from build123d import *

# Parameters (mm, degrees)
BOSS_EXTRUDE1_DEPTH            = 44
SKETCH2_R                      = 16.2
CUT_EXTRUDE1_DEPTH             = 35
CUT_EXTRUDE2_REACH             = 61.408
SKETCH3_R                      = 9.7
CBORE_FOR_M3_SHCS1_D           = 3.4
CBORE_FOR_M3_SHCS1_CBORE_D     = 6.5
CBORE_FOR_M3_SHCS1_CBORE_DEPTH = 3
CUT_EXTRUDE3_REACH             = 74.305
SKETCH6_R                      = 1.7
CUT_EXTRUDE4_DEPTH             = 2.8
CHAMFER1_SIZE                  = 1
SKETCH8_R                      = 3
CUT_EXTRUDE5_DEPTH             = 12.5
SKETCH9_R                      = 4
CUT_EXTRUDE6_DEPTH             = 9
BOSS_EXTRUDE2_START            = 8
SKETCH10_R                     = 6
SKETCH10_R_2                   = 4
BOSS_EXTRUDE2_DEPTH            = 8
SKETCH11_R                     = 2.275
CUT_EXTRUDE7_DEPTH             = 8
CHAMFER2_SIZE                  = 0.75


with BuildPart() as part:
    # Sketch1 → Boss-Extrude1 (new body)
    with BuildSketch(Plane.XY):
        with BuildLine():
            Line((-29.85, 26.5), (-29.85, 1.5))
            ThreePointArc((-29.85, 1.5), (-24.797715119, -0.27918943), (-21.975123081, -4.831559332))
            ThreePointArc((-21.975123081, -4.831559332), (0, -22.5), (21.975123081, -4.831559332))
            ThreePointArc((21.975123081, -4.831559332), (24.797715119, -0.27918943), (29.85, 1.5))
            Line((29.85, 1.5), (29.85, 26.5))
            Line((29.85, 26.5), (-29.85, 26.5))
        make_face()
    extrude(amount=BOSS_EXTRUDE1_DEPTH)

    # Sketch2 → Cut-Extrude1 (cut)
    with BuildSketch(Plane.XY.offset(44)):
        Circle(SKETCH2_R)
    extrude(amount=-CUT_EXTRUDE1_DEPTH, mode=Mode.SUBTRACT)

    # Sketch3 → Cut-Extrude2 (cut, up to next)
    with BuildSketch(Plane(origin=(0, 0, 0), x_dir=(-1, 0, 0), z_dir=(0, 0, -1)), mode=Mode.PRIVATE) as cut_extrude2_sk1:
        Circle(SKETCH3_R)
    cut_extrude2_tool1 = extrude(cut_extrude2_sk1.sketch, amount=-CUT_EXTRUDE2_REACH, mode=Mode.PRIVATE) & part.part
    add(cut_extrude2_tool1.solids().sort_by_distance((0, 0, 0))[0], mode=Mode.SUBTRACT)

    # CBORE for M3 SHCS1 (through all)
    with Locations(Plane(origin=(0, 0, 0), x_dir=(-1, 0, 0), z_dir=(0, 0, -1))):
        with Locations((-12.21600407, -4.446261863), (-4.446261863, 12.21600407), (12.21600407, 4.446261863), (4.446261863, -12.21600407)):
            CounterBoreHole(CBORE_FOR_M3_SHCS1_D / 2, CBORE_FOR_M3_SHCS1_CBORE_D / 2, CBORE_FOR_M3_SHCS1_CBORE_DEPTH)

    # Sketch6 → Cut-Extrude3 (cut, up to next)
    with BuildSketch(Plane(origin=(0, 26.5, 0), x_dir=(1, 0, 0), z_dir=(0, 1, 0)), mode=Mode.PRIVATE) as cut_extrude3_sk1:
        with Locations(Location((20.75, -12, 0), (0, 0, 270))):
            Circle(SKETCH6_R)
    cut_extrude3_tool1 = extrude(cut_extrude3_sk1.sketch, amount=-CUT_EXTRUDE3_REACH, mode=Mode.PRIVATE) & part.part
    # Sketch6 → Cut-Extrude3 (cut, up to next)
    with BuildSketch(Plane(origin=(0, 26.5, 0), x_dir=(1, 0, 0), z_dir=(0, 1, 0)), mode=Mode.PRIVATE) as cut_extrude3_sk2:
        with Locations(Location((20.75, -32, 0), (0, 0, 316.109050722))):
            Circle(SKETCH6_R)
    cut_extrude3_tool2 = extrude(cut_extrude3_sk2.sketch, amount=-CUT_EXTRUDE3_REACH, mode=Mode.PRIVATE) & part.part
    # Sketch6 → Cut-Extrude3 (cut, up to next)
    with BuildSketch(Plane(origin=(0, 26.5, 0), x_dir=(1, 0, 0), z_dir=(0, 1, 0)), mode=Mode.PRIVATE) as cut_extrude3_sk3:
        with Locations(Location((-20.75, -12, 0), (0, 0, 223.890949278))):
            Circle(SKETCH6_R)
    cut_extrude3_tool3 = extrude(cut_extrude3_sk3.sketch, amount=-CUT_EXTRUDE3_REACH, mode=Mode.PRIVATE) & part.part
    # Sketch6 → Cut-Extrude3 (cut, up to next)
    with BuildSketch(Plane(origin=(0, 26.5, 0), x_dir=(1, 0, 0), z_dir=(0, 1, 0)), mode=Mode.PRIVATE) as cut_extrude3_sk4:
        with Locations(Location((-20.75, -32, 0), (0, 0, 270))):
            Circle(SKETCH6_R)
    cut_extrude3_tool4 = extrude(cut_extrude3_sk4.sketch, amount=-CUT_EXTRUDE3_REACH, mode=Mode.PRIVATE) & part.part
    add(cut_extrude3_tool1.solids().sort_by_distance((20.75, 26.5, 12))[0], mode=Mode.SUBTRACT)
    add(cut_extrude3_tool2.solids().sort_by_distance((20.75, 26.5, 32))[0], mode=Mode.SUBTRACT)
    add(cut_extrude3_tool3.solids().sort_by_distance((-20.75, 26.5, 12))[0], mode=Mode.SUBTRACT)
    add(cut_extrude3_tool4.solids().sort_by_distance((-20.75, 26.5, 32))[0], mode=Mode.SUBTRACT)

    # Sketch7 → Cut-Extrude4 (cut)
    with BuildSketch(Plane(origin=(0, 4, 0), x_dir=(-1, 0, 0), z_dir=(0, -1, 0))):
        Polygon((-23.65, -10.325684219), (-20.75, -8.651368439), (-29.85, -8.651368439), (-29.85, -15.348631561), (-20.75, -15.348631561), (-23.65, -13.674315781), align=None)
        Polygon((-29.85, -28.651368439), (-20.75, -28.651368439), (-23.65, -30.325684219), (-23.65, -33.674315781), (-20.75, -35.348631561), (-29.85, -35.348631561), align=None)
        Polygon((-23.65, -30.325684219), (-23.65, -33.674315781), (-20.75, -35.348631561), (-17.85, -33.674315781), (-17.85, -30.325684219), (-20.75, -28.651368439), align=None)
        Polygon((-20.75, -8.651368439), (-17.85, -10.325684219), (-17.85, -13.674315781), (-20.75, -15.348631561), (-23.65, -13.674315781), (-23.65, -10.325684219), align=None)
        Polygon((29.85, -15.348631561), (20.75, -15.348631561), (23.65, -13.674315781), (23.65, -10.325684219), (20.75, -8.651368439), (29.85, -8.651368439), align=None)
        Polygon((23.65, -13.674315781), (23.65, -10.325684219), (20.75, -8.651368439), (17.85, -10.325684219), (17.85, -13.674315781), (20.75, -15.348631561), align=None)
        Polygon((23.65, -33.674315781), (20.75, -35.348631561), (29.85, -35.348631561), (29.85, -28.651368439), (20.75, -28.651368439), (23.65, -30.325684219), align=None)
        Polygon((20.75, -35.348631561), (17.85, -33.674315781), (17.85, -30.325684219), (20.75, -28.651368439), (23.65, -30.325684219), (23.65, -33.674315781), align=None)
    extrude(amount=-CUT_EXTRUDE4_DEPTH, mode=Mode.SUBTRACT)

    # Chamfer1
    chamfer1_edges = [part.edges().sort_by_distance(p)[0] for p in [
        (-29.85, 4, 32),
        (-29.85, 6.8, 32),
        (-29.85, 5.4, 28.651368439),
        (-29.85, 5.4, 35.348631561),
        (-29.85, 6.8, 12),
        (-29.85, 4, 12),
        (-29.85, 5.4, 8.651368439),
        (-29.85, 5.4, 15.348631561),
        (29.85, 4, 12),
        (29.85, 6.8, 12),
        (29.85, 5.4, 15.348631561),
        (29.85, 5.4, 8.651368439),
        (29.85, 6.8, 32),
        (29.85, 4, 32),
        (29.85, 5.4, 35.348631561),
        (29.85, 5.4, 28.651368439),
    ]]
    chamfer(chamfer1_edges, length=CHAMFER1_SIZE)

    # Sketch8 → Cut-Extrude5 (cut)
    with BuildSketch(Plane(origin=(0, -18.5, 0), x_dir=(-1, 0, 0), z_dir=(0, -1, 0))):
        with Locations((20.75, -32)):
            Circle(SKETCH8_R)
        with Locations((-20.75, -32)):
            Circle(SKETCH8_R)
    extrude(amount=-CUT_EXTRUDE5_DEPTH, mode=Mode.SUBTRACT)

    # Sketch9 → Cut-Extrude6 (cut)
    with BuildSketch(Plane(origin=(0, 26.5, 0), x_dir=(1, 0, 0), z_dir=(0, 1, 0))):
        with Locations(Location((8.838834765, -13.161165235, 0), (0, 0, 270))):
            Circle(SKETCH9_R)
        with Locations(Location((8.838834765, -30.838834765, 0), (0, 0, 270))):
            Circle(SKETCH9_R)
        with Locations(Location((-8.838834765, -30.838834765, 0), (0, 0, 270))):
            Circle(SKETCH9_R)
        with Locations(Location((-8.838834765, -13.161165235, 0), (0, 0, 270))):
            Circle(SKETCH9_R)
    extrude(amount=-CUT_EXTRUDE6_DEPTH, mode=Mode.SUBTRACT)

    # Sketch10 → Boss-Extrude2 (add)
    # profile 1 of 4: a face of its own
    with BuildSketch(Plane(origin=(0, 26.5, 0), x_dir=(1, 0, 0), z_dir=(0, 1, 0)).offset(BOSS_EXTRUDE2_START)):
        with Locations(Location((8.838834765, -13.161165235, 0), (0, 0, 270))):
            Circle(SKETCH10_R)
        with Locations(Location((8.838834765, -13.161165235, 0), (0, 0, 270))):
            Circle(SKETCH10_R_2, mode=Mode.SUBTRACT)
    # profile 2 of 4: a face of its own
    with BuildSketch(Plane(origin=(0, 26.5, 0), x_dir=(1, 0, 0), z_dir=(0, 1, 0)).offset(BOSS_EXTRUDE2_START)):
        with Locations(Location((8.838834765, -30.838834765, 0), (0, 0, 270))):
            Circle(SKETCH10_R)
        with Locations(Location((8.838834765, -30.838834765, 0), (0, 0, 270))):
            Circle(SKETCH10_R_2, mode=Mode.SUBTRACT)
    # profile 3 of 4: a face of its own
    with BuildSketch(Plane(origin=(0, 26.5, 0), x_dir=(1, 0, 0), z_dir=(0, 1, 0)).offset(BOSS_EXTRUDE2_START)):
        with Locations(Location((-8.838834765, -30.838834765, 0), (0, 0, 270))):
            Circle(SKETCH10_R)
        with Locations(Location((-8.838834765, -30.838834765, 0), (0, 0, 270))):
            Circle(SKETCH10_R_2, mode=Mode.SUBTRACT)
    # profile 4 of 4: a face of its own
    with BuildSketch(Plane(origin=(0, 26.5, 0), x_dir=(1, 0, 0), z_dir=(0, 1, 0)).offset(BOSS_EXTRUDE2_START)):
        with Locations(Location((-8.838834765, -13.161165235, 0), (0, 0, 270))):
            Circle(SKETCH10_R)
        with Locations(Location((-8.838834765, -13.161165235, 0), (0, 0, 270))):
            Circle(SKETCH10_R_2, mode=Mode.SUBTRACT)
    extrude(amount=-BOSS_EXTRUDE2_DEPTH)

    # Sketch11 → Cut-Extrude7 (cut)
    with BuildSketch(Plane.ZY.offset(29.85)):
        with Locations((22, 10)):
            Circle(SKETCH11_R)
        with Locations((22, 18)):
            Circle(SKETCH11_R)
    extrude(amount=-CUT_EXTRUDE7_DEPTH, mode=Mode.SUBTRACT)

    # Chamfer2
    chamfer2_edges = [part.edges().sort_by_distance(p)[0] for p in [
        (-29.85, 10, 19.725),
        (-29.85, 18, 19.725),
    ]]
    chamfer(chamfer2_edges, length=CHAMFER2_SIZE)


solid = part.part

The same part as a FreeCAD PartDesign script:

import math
import FreeCAD as App
import Part
import Sketcher

V = App.Vector
Q = App.Units.Quantity


def edges_at(feature, points):
    """Names of the edges that pass closest to the given points."""
    edges = feature.Shape.Edges
    near = lambda p: min(range(len(edges)), key=lambda i: edges[i].distToShape(Part.Vertex(*p))[0])
    return sorted({f"Edge{near(p) + 1}" for p in points})

doc = App.newDocument("Part")
body = doc.addObject("PartDesign::Body", "Body")

sketch1 = doc.addObject("Sketcher::SketchObject", "Sketch")
body.addObject(sketch1)
sketch1.AttachmentSupport = (doc.XY_Plane, [""])
sketch1.MapMode = "FlatFace"
sketch1.addGeometry([
    Part.LineSegment(V(-30, 26, 0), V(-30, 2, 0)),
    Part.ArcOfCircle(Part.Circle(V(-30, -7, 0), V(0, 0, 1), 8), math.radians(12), math.radians(90)),
    Part.ArcOfCircle(Part.Circle(V(0, 0, 0), V(0, 0, 1), 22), math.radians(-168), math.radians(-12)),
    Part.ArcOfCircle(Part.Circle(V(30, -7, 0), V(0, 0, 1), 8), math.radians(90), math.radians(168)),
    Part.LineSegment(V(30, 2, 0), V(30, 26, 0)),
    Part.LineSegment(V(30, 26, 0), V(-30, 26, 0)),
], False)
sketch1.addConstraint([
    Sketcher.Constraint("Coincident", 0, 2, 1, 2),
    Sketcher.Constraint("Tangent", 1, 1, 2, 1),
    Sketcher.Constraint("Tangent", 2, 2, 3, 2),
    Sketcher.Constraint("Coincident", 3, 1, 4, 1),
    Sketcher.Constraint("Coincident", 4, 2, 5, 1),
    Sketcher.Constraint("Coincident", 5, 2, 0, 1),
    Sketcher.Constraint("Vertical", 0),
    Sketcher.Constraint("Vertical", 4),
    Sketcher.Constraint("Horizontal", 5),
    Sketcher.Constraint("Coincident", 2, 3, -1, 1),
    Sketcher.Constraint("Equal", 1, 3),
    Sketcher.Constraint("Symmetric", 0, 2, 3, 1, -2),
    Sketcher.Constraint("Vertical", 1, 3, 0, 2),
    Sketcher.Constraint("Radius", 2, 22.5),
    Sketcher.Constraint("DistanceY", 0, 2, 0, 1, 25.0),
    Sketcher.Constraint("DistanceX", 5, 2, 5, 1, 59.7),
    Sketcher.Constraint("DistanceY", -1, 1, 0, 2, 1.5),
])
pad1 = doc.addObject("PartDesign::Pad", "Pad")
body.addObject(pad1)
pad1.Profile = sketch1
pad1.Length = 44

sketch2 = doc.addObject("Sketcher::SketchObject", "Sketch001")
body.addObject(sketch2)
sketch2.AttachmentSupport = (doc.XY_Plane, [""])
sketch2.MapMode = "FlatFace"
sketch2.AttachmentOffset = App.Placement(V(0, 0, 44), App.Rotation())
sketch2.addGeometry(Part.Circle(V(0, 0, 0), V(0, 0, 1), 16), False)
sketch2.addConstraint([
    Sketcher.Constraint("Coincident", 0, 3, -1, 1),
    Sketcher.Constraint("Diameter", 0, 32.4),
])
pocket1 = doc.addObject("PartDesign::Pocket", "Pocket")
body.addObject(pocket1)
pocket1.Profile = sketch2
pocket1.Length = 35

sketch3 = doc.addObject("Sketcher::SketchObject", "Sketch002")
body.addObject(sketch3)
sketch3.AttachmentSupport = (doc.XY_Plane, [""])
sketch3.MapMode = "FlatFace"
sketch3.addGeometry(Part.Circle(V(0, 0, 0), V(0, 0, 1), 10), False)
sketch3.addConstraint([
    Sketcher.Constraint("Coincident", 0, 3, -1, 1),
    Sketcher.Constraint("Diameter", 0, 19.4),
])
pocket2 = doc.addObject("PartDesign::Pocket", "Pocket001")
body.addObject(pocket2)
pocket2.Profile = sketch3
pocket2.Type = "UpToFirst"
pocket2.Reversed = True

sketch4 = doc.addObject("Sketcher::SketchObject", "Sketch003")
body.addObject(sketch4)
sketch4.AttachmentSupport = (doc.XY_Plane, [""])
sketch4.MapMode = "FlatFace"
sketch4.addGeometry([
    Part.Circle(V(12.2, -4.4, 0), V(0, 0, 1), 1.7),
    Part.Circle(V(4.4, 12.2, 0), V(0, 0, 1), 1.7),
    Part.Circle(V(-12.2, 4.4, 0), V(0, 0, 1), 1.7),
    Part.Circle(V(-4.4, -12.2, 0), V(0, 0, 1), 1.7),
], False)
sketch4.addConstraint([
    Sketcher.Constraint("Equal", 0, 1),
    Sketcher.Constraint("Equal", 1, 2),
    Sketcher.Constraint("Equal", 2, 3),
    Sketcher.Constraint("Symmetric", 0, 3, 2, 3, -1, 1),
    Sketcher.Constraint("Symmetric", 1, 3, 3, 3, -1, 1),
    Sketcher.Constraint("Diameter", 0, 3.4),
    Sketcher.Constraint("DistanceY", 0, 3, -1, 1, 4.446262),
    Sketcher.Constraint("DistanceX", -1, 1, 1, 3, 4.446262),
    Sketcher.Constraint("DistanceX", 2, 3, 0, 3, 24.432008),
    Sketcher.Constraint("DistanceY", 3, 3, 1, 3, 24.432008),
])
doc.recompute()
hole = doc.addObject("PartDesign::Hole", "Hole")
body.addObject(hole)
hole.Profile = sketch4
hole.ThreadType = "None"
hole.Diameter = 3.4
hole.DepthType = "ThroughAll"
hole.HoleCutType = "Counterbore"
hole.HoleCutDiameter = 6.5
hole.HoleCutDepth = 3
hole.Reversed = True

sketch5 = doc.addObject("Sketcher::SketchObject", "Sketch004")
body.addObject(sketch5)
sketch5.AttachmentSupport = (doc.XZ_Plane, [""])
sketch5.MapMode = "FlatFace"
sketch5.AttachmentOffset = App.Placement(V(0, 0, -26.5), App.Rotation())
sketch5.addGeometry(Part.Circle(V(20.8, 12, 0), V(0, 0, 1), 1.7), False)
sketch5.addConstraint([
    Sketcher.Constraint("Diameter", 0, 3.4),
    Sketcher.Constraint("DistanceY", -1, 1, 0, 3, 12.0),
    Sketcher.Constraint("DistanceX", -1, 1, 0, 3, 20.75),
])
pocket3 = doc.addObject("PartDesign::Pocket", "Pocket002")
body.addObject(pocket3)
pocket3.Profile = sketch5
pocket3.Type = "UpToFirst"
pocket3.Reversed = True

sketch6 = doc.addObject("Sketcher::SketchObject", "Sketch005")
body.addObject(sketch6)
sketch6.AttachmentSupport = (doc.XZ_Plane, [""])
sketch6.MapMode = "FlatFace"
sketch6.AttachmentOffset = App.Placement(V(0, 0, -26.5), App.Rotation())
sketch6.addGeometry(Part.Circle(V(20.8, 32, 0), V(0, 0, 1), 1.7), False)
sketch6.addConstraint([
    Sketcher.Constraint("Diameter", 0, 3.4),
    Sketcher.Constraint("DistanceY", -1, 1, 0, 3, 32.0),
    Sketcher.Constraint("DistanceX", -1, 1, 0, 3, 20.75),
])
pocket4 = doc.addObject("PartDesign::Pocket", "Pocket003")
body.addObject(pocket4)
pocket4.Profile = sketch6
pocket4.Type = "UpToFirst"
pocket4.Reversed = True

sketch7 = doc.addObject("Sketcher::SketchObject", "Sketch006")
body.addObject(sketch7)
sketch7.AttachmentSupport = (doc.XZ_Plane, [""])
sketch7.MapMode = "FlatFace"
sketch7.AttachmentOffset = App.Placement(V(0, 0, -26.5), App.Rotation())
sketch7.addGeometry(Part.Circle(V(-20.8, 12, 0), V(0, 0, 1), 1.7), False)
sketch7.addConstraint([
    Sketcher.Constraint("Diameter", 0, 3.4),
    Sketcher.Constraint("DistanceY", -1, 1, 0, 3, 12.0),
    Sketcher.Constraint("DistanceX", 0, 3, -1, 1, 20.75),
])
pocket5 = doc.addObject("PartDesign::Pocket", "Pocket004")
body.addObject(pocket5)
pocket5.Profile = sketch7
pocket5.Type = "UpToFirst"
pocket5.Reversed = True

sketch8 = doc.addObject("Sketcher::SketchObject", "Sketch007")
body.addObject(sketch8)
sketch8.AttachmentSupport = (doc.XZ_Plane, [""])
sketch8.MapMode = "FlatFace"
sketch8.AttachmentOffset = App.Placement(V(0, 0, -26.5), App.Rotation())
sketch8.addGeometry(Part.Circle(V(-20.8, 32, 0), V(0, 0, 1), 1.7), False)
sketch8.addConstraint([
    Sketcher.Constraint("Diameter", 0, 3.4),
    Sketcher.Constraint("DistanceY", -1, 1, 0, 3, 32.0),
    Sketcher.Constraint("DistanceX", 0, 3, -1, 1, 20.75),
])
pocket6 = doc.addObject("PartDesign::Pocket", "Pocket005")
body.addObject(pocket6)
pocket6.Profile = sketch8
pocket6.Type = "UpToFirst"
pocket6.Reversed = True

sketch9 = doc.addObject("Sketcher::SketchObject", "Sketch008")
body.addObject(sketch9)
sketch9.AttachmentSupport = (doc.XZ_Plane, [""])
sketch9.MapMode = "FlatFace"
sketch9.AttachmentOffset = App.Placement(V(0, 0, -4), App.Rotation())
sketch9.addGeometry([
    Part.LineSegment(V(20.8, 8.7, 0), V(29.9, 8.7, 0)),
    Part.LineSegment(V(29.9, 8.7, 0), V(29.9, 15.3, 0)),
    Part.LineSegment(V(29.9, 15.3, 0), V(20.8, 15.3, 0)),
    Part.LineSegment(V(20.8, 15.3, 0), V(17.9, 13.7, 0)),
    Part.LineSegment(V(17.9, 13.7, 0), V(17.9, 10.3, 0)),
    Part.LineSegment(V(17.9, 10.3, 0), V(20.8, 8.7, 0)),
    Part.LineSegment(V(20.8, 28.7, 0), V(29.9, 28.7, 0)),
    Part.LineSegment(V(29.9, 28.7, 0), V(29.9, 35.3, 0)),
    Part.LineSegment(V(29.9, 35.3, 0), V(20.8, 35.3, 0)),
    Part.LineSegment(V(20.8, 35.3, 0), V(17.9, 33.7, 0)),
    Part.LineSegment(V(17.9, 33.7, 0), V(17.9, 30.3, 0)),
    Part.LineSegment(V(17.9, 30.3, 0), V(20.8, 28.7, 0)),
    Part.LineSegment(V(-20.8, 15.3, 0), V(-29.9, 15.3, 0)),
    Part.LineSegment(V(-29.9, 15.3, 0), V(-29.9, 8.7, 0)),
    Part.LineSegment(V(-29.9, 8.7, 0), V(-20.8, 8.7, 0)),
    Part.LineSegment(V(-20.8, 8.7, 0), V(-17.9, 10.3, 0)),
    Part.LineSegment(V(-17.9, 10.3, 0), V(-17.9, 13.7, 0)),
    Part.LineSegment(V(-17.9, 13.7, 0), V(-20.8, 15.3, 0)),
    Part.LineSegment(V(-20.8, 35.3, 0), V(-29.9, 35.3, 0)),
    Part.LineSegment(V(-29.9, 35.3, 0), V(-29.9, 28.7, 0)),
    Part.LineSegment(V(-29.9, 28.7, 0), V(-20.8, 28.7, 0)),
    Part.LineSegment(V(-20.8, 28.7, 0), V(-17.9, 30.3, 0)),
    Part.LineSegment(V(-17.9, 30.3, 0), V(-17.9, 33.7, 0)),
    Part.LineSegment(V(-17.9, 33.7, 0), V(-20.8, 35.3, 0)),
], False)
sketch9.addConstraint([
    Sketcher.Constraint("Coincident", 0, 2, 1, 1),
    Sketcher.Constraint("Coincident", 1, 2, 2, 1),
    Sketcher.Constraint("Coincident", 2, 2, 3, 1),
    Sketcher.Constraint("Coincident", 3, 2, 4, 1),
    Sketcher.Constraint("Coincident", 4, 2, 5, 1),
    Sketcher.Constraint("Coincident", 5, 2, 0, 1),
    Sketcher.Constraint("Coincident", 6, 2, 7, 1),
    Sketcher.Constraint("Coincident", 7, 2, 8, 1),
    Sketcher.Constraint("Coincident", 8, 2, 9, 1),
    Sketcher.Constraint("Coincident", 9, 2, 10, 1),
    Sketcher.Constraint("Coincident", 10, 2, 11, 1),
    Sketcher.Constraint("Coincident", 11, 2, 6, 1),
    Sketcher.Constraint("Coincident", 12, 2, 13, 1),
    Sketcher.Constraint("Coincident", 13, 2, 14, 1),
    Sketcher.Constraint("Coincident", 14, 2, 15, 1),
    Sketcher.Constraint("Coincident", 15, 2, 16, 1),
    Sketcher.Constraint("Coincident", 16, 2, 17, 1),
    Sketcher.Constraint("Coincident", 17, 2, 12, 1),
    Sketcher.Constraint("Coincident", 18, 2, 19, 1),
    Sketcher.Constraint("Coincident", 19, 2, 20, 1),
    Sketcher.Constraint("Coincident", 20, 2, 21, 1),
    Sketcher.Constraint("Coincident", 21, 2, 22, 1),
    Sketcher.Constraint("Coincident", 22, 2, 23, 1),
    Sketcher.Constraint("Coincident", 23, 2, 18, 1),
    Sketcher.Constraint("Horizontal", 0),
    Sketcher.Constraint("Vertical", 1),
    Sketcher.Constraint("Horizontal", 2),
    Sketcher.Constraint("Vertical", 4),
    Sketcher.Constraint("Horizontal", 6),
    Sketcher.Constraint("Vertical", 7),
    Sketcher.Constraint("Horizontal", 8),
    Sketcher.Constraint("Vertical", 10),
    Sketcher.Constraint("Horizontal", 12),
    Sketcher.Constraint("Vertical", 13),
    Sketcher.Constraint("Horizontal", 14),
    Sketcher.Constraint("Vertical", 16),
    Sketcher.Constraint("Horizontal", 18),
    Sketcher.Constraint("Vertical", 19),
    Sketcher.Constraint("Horizontal", 20),
    Sketcher.Constraint("Vertical", 22),
    Sketcher.Constraint("Symmetric", 1, 2, 12, 2, -2),
    Sketcher.Constraint("Symmetric", 5, 2, 14, 2, -2),
    Sketcher.Constraint("Symmetric", 4, 2, 15, 2, -2),
    Sketcher.Constraint("Symmetric", 7, 2, 18, 2, -2),
    Sketcher.Constraint("Symmetric", 11, 2, 20, 2, -2),
    Sketcher.Constraint("Symmetric", 10, 2, 21, 2, -2),
    Sketcher.Constraint("Parallel", 3, 9),
    Sketcher.Constraint("Parallel", 5, 11),
    Sketcher.Constraint("Parallel", 9, 15),
    Sketcher.Constraint("Parallel", 11, 17),
    Sketcher.Constraint("Parallel", 17, 23),
    Sketcher.Constraint("Horizontal", 3, 2, 16, 2),
    Sketcher.Constraint("Horizontal", 9, 2, 22, 2),
    Sketcher.Constraint("Vertical", 2, 2, 5, 2),
    Sketcher.Constraint("Vertical", 1, 2, 6, 2),
    Sketcher.Constraint("Vertical", 5, 2, 8, 2),
    Sketcher.Constraint("Vertical", 4, 2, 9, 2),
    Sketcher.Constraint("Vertical", 8, 2, 11, 2),
    Sketcher.Constraint("Equal", 1, 7),
    Sketcher.Constraint("Angle", 3, Q("-150 deg")),
    Sketcher.Constraint("DistanceX", 0, 1, 0, 2, 9.1),
    Sketcher.Constraint("DistanceX", 3, 2, 1, 2, 12.0),
    Sketcher.Constraint("DistanceY", 0, 2, 6, 2, 20.0),
    Sketcher.Constraint("DistanceX", 12, 2, 3, 2, 47.7),
    Sketcher.Constraint("DistanceY", 4, 2, 4, 1, 3.348632),
    Sketcher.Constraint("DistanceY", -1, 1, 0, 2, 8.651368),
])
pocket7 = doc.addObject("PartDesign::Pocket", "Pocket006")
body.addObject(pocket7)
pocket7.Profile = sketch9
pocket7.Length = 2.8
doc.recompute()

chamfer = doc.addObject("PartDesign::Chamfer", "Chamfer")
body.addObject(chamfer)
chamfer.Base = (pocket7, edges_at(pocket7, [
    (-29.85, 4, 32),
    (-29.85, 6.8, 32),
    (-29.85, 5.4, 28.651),
    (-29.85, 5.4, 35.349),
    (-29.85, 6.8, 12),
    (-29.85, 4, 12),
    (-29.85, 5.4, 8.651),
    (-29.85, 5.4, 15.349),
    (29.85, 4, 12),
    (29.85, 6.8, 12),
    (29.85, 5.4, 15.349),
    (29.85, 5.4, 8.651),
    (29.85, 6.8, 32),
    (29.85, 4, 32),
    (29.85, 5.4, 35.349),
    (29.85, 5.4, 28.651),
]))
chamfer.Size = 1

sketch10 = doc.addObject("Sketcher::SketchObject", "Sketch009")
body.addObject(sketch10)
sketch10.AttachmentSupport = (doc.XZ_Plane, [""])
sketch10.MapMode = "FlatFace"
sketch10.AttachmentOffset = App.Placement(V(0, 0, 18.5), App.Rotation())
sketch10.addGeometry([
    Part.Circle(V(-20.8, 32, 0), V(0, 0, 1), 3),
    Part.Circle(V(20.8, 32, 0), V(0, 0, 1), 3),
], False)
sketch10.addConstraint([
    Sketcher.Constraint("Equal", 0, 1),
    Sketcher.Constraint("Symmetric", 0, 3, 1, 3, -2),
    Sketcher.Constraint("Diameter", 0, 6.0),
    Sketcher.Constraint("DistanceY", -1, 1, 0, 3, 32.0),
    Sketcher.Constraint("DistanceX", 0, 3, 1, 3, 41.5),
])
pocket8 = doc.addObject("PartDesign::Pocket", "Pocket007")
body.addObject(pocket8)
pocket8.Profile = sketch10
pocket8.Length = 12.5

sketch11 = doc.addObject("Sketcher::SketchObject", "Sketch010")
body.addObject(sketch11)
sketch11.AttachmentSupport = (doc.XZ_Plane, [""])
sketch11.MapMode = "FlatFace"
sketch11.AttachmentOffset = App.Placement(V(0, 0, -26.5), App.Rotation())
sketch11.addGeometry([
    Part.Circle(V(8.8, 13.2, 0), V(0, 0, 1), 4),
    Part.Circle(V(8.8, 30.8, 0), V(0, 0, 1), 4),
    Part.Circle(V(-8.8, 30.8, 0), V(0, 0, 1), 4),
    Part.Circle(V(-8.8, 13.2, 0), V(0, 0, 1), 4),
], False)
sketch11.addConstraint([
    Sketcher.Constraint("Equal", 0, 1),
    Sketcher.Constraint("Equal", 1, 2),
    Sketcher.Constraint("Equal", 2, 3),
    Sketcher.Constraint("Symmetric", 1, 3, 2, 3, -2),
    Sketcher.Constraint("Symmetric", 0, 3, 3, 3, -2),
    Sketcher.Constraint("Vertical", 0, 3, 1, 3),
    Sketcher.Constraint("Diameter", 0, 8.0),
    Sketcher.Constraint("DistanceY", 0, 3, 1, 3, 17.67767),
    Sketcher.Constraint("DistanceX", 2, 3, 1, 3, 17.67767),
    Sketcher.Constraint("DistanceY", -1, 1, 0, 3, 13.161165),
])
pocket9 = doc.addObject("PartDesign::Pocket", "Pocket008")
body.addObject(pocket9)
pocket9.Profile = sketch11
pocket9.Length = 9
pocket9.Reversed = True

sketch12 = doc.addObject("Sketcher::SketchObject", "Sketch011")
body.addObject(sketch12)
sketch12.AttachmentSupport = (doc.XZ_Plane, [""])
sketch12.MapMode = "FlatFace"
sketch12.AttachmentOffset = App.Placement(V(0, 0, -34.5), App.Rotation())
sketch12.addGeometry([
    Part.Circle(V(8.8, 13.2, 0), V(0, 0, 1), 6),
    Part.Circle(V(8.8, 13.2, 0), V(0, 0, 1), 4),
    Part.Circle(V(8.8, 30.8, 0), V(0, 0, 1), 6),
    Part.Circle(V(8.8, 30.8, 0), V(0, 0, 1), 4),
    Part.Circle(V(-8.8, 30.8, 0), V(0, 0, 1), 6),
    Part.Circle(V(-8.8, 30.8, 0), V(0, 0, 1), 4),
    Part.Circle(V(-8.8, 13.2, 0), V(0, 0, 1), 6),
    Part.Circle(V(-8.8, 13.2, 0), V(0, 0, 1), 4),
], False)
sketch12.addConstraint([
    Sketcher.Constraint("Coincident", 1, 3, 0, 3),
    Sketcher.Constraint("Coincident", 3, 3, 2, 3),
    Sketcher.Constraint("Coincident", 5, 3, 4, 3),
    Sketcher.Constraint("Coincident", 7, 3, 6, 3),
    Sketcher.Constraint("Equal", 0, 2),
    Sketcher.Constraint("Equal", 1, 3),
    Sketcher.Constraint("Equal", 2, 4),
    Sketcher.Constraint("Equal", 3, 5),
    Sketcher.Constraint("Equal", 4, 6),
    Sketcher.Constraint("Equal", 5, 7),
    Sketcher.Constraint("Symmetric", 2, 3, 4, 3, -2),
    Sketcher.Constraint("Symmetric", 0, 3, 6, 3, -2),
    Sketcher.Constraint("Vertical", 1, 3, 2, 3),
    Sketcher.Constraint("Diameter", 0, 12.0),
    Sketcher.Constraint("Diameter", 1, 8.0),
    Sketcher.Constraint("DistanceY", 0, 3, 2, 3, 17.67767),
    Sketcher.Constraint("DistanceX", 4, 3, 2, 3, 17.67767),
    Sketcher.Constraint("DistanceY", -1, 1, 0, 3, 13.161165),
])
pad2 = doc.addObject("PartDesign::Pad", "Pad001")
body.addObject(pad2)
pad2.Profile = sketch12
pad2.Length = 8

sketch13 = doc.addObject("Sketcher::SketchObject", "Sketch012")
body.addObject(sketch13)
sketch13.AttachmentSupport = (doc.YZ_Plane, [""])
sketch13.MapMode = "FlatFace"
sketch13.AttachmentOffset = App.Placement(V(0, 0, -29.85), App.Rotation())
sketch13.addGeometry([
    Part.Circle(V(10, 22, 0), V(0, 0, 1), 2.3),
    Part.Circle(V(18, 22, 0), V(0, 0, 1), 2.3),
], False)
sketch13.addConstraint([
    Sketcher.Constraint("Equal", 0, 1),
    Sketcher.Constraint("Horizontal", 0, 3, 1, 3),
    Sketcher.Constraint("Diameter", 0, 4.55),
    Sketcher.Constraint("DistanceX", -1, 1, 0, 3, 10.0),
    Sketcher.Constraint("DistanceY", -1, 1, 0, 3, 22.0),
    Sketcher.Constraint("DistanceX", -1, 1, 1, 3, 18.0),
])
pocket10 = doc.addObject("PartDesign::Pocket", "Pocket009")
body.addObject(pocket10)
pocket10.Profile = sketch13
pocket10.Length = 8
pocket10.Reversed = True
doc.recompute()

chamfer2 = doc.addObject("PartDesign::Chamfer", "Chamfer001")
body.addObject(chamfer2)
chamfer2.Base = (pocket10, edges_at(pocket10, [(-29.85, 10, 19.725), (-29.85, 18, 19.725)]))
chamfer2.Size = 0.75

doc.recompute()
